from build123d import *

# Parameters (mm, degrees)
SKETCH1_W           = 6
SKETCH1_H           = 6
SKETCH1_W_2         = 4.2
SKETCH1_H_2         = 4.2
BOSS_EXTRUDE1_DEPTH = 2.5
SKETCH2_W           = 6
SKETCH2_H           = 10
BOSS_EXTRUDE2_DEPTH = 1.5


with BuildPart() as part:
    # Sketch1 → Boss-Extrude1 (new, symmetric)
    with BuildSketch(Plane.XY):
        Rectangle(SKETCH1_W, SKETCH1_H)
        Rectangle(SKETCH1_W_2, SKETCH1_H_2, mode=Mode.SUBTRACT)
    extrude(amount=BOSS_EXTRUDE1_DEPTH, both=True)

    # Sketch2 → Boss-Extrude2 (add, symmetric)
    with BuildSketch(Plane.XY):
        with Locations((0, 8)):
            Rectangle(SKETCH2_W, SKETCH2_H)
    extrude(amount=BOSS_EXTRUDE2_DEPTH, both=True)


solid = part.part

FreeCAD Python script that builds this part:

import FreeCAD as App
import Part
import Sketcher

V = App.Vector
Q = App.Units.Quantity

doc = App.newDocument("Part")
body = doc.addObject("PartDesign::Body", "Body")

sketch1 = body.newObject("Sketcher::SketchObject", "Sketch")
sketch1.AttachmentSupport = (doc.getObject("XY_Plane"), [""])
sketch1.MapMode = "FlatFace"
sketch1.addGeometry([
    Part.LineSegment(V(-3, 3, 0), V(-3, -3, 0)),
    Part.LineSegment(V(-3, -3, 0), V(3, -3, 0)),
    Part.LineSegment(V(3, -3, 0), V(3, 3, 0)),
    Part.LineSegment(V(3, 3, 0), V(-3, 3, 0)),
    Part.LineSegment(V(2.1, -2.1, 0), V(-2.1, -2.1, 0)),
    Part.LineSegment(V(-2.1, -2.1, 0), V(-2.1, 2.1, 0)),
    Part.LineSegment(V(-2.1, 2.1, 0), V(2.1, 2.1, 0)),
    Part.LineSegment(V(2.1, 2.1, 0), V(2.1, -2.1, 0)),
], False)
sketch1.addConstraint([
    Sketcher.Constraint("Coincident", 0, 2, 1, 1),
    Sketcher.Constraint("Coincident", 1, 2, 2, 1),
    Sketcher.Constraint("Coincident", 2, 2, 3, 1),
    Sketcher.Constraint("Coincident", 3, 2, 0, 1),
    Sketcher.Constraint("Coincident", 4, 2, 5, 1),
    Sketcher.Constraint("Coincident", 5, 2, 6, 1),
    Sketcher.Constraint("Coincident", 6, 2, 7, 1),
    Sketcher.Constraint("Coincident", 7, 2, 4, 1),
    Sketcher.Constraint("Vertical", 0),
    Sketcher.Constraint("Horizontal", 1),
    Sketcher.Constraint("Vertical", 2),
    Sketcher.Constraint("Horizontal", 3),
    Sketcher.Constraint("Horizontal", 4),
    Sketcher.Constraint("Vertical", 5),
    Sketcher.Constraint("Horizontal", 6),
    Sketcher.Constraint("Vertical", 7),
    Sketcher.Constraint("Symmetric", 0, 2, 2, 2, -1, 1),
    Sketcher.Constraint("Symmetric", 4, 2, 6, 2, -1, 1),
    Sketcher.Constraint("Equal", 3, 0),
    Sketcher.Constraint("Equal", 6, 5),
    Sketcher.Constraint("DistanceX", 1, 1, 1, 2, Q("6 mm")),
    Sketcher.Constraint("DistanceX", 4, 2, 4, 1, Q("4.2 mm")),
])
pad1 = body.newObject("PartDesign::Pad", "Pad")
pad1.Profile = sketch1
pad1.Length = 5
pad1.Midplane = True

sketch2 = body.newObject("Sketcher::SketchObject", "Sketch001")
sketch2.AttachmentSupport = (doc.getObject("XY_Plane"), [""])
sketch2.MapMode = "FlatFace"
sketch2.addGeometry([
    Part.LineSegment(V(-3, 13, 0), V(-3, 3, 0)),
    Part.LineSegment(V(-3, 3, 0), V(3, 3, 0)),
    Part.LineSegment(V(3, 3, 0), V(3, 13, 0)),
    Part.LineSegment(V(3, 13, 0), V(-3, 13, 0)),
], False)
sketch2.addConstraint([
    Sketcher.Constraint("Coincident", 0, 2, 1, 1),
    Sketcher.Constraint("Coincident", 1, 2, 2, 1),
    Sketcher.Constraint("Coincident", 2, 2, 3, 1),
    Sketcher.Constraint("Coincident", 3, 2, 0, 1),
    Sketcher.Constraint("Vertical", 0),
    Sketcher.Constraint("Horizontal", 1),
    Sketcher.Constraint("Vertical", 2),
    Sketcher.Constraint("Horizontal", 3),
    Sketcher.Constraint("DistanceX", 1, 1, 1, 2, Q("6 mm")),
    Sketcher.Constraint("DistanceY", 0, 2, 0, 1, Q("10 mm")),
    Sketcher.Constraint("DistanceX", 0, 2, -1, 1, Q("3 mm")),
    Sketcher.Constraint("DistanceY", -1, 1, 0, 2, Q("3 mm")),
])
pad2 = body.newObject("PartDesign::Pad", "Pad001")
pad2.Profile = sketch2
pad2.Length = 3
pad2.Midplane = True

doc.recompute()
